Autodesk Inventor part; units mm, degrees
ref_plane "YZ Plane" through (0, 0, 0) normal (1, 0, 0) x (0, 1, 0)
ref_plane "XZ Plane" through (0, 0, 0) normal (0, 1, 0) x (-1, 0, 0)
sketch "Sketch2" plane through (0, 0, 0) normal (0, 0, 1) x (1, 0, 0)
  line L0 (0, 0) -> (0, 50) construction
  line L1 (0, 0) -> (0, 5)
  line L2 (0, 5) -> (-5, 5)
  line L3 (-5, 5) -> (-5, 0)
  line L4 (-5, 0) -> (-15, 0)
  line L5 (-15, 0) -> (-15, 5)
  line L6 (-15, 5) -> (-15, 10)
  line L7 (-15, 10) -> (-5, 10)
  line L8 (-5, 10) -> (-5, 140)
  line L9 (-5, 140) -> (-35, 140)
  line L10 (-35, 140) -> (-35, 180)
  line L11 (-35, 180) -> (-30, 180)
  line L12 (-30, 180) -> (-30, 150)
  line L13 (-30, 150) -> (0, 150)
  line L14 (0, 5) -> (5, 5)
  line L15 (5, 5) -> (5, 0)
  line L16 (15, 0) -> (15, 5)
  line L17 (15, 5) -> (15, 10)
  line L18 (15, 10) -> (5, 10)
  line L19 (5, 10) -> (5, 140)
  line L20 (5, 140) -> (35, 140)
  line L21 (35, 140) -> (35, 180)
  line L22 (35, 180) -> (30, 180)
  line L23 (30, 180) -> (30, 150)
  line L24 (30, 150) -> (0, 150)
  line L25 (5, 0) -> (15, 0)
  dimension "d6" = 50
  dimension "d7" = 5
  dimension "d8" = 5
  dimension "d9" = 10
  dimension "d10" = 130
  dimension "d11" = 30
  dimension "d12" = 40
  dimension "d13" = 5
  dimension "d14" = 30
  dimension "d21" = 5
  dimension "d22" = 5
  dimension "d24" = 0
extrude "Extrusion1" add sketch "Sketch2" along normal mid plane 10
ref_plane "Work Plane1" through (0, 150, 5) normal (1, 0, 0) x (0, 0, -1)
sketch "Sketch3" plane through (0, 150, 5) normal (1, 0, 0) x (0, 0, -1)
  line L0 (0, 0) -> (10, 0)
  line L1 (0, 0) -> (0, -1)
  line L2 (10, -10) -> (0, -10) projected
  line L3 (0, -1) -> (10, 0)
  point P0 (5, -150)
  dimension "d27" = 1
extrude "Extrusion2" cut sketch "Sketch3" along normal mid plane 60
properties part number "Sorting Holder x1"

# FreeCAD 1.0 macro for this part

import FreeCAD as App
import Part
import Sketcher
from FreeCAD import Vector


def add_polygon(sketch, points):
    """Adds a closed chain of lines whose ends are joined by coincident constraints."""
    first, n = sketch.GeometryCount, len(points)
    for a, b in zip(points, points[1:] + points[:1]):
        sketch.addGeometry(Part.LineSegment(App.Vector(*a, 0), App.Vector(*b, 0)), False)
    for i in range(n):
        sketch.addConstraint(Sketcher.Constraint("Coincident", first + i, 2, first + (i + 1) % n, 1))

doc = App.newDocument("Part")
params = doc.addObject("Spreadsheet::Sheet", "Params")
for row, (alias, value) in enumerate([
    ("sketch1_width", "10 mm"),
    ("sketch1_width2", "30 mm"),
    ("sketch1_width3", "5 mm"),
    ("sketch1_height", "130 mm"),
    ("sketch1_height2", "40 mm"),
    ("pad1_length", "10 mm"),
    ("sketch2_width", "1 mm"),
    ("sketch2_height", "10 mm"),
    ("pocket1_length", "60 mm"),
], start=1):
    params.set(f"A{row}", alias)
    params.set(f"B{row}", "=" + value)
    params.setAlias(f"B{row}", alias)

body = doc.addObject("PartDesign::Body", "Body")

sketch1 = body.newObject("Sketcher::SketchObject", "Sketch")
sketch1.AttachmentSupport = (doc.getObject("XY_Plane"), [""])
sketch1.MapMode = "FlatFace"
add_polygon(sketch1, [(-5, 5), (5, 5), (5, 0), (15, 0), (15, 10), (5, 10), (5, 140), (35, 140), (35, 180), (30, 180), (30, 150), (-30, 150), (-30, 180), (-35, 180), (-35, 140), (-5, 140), (-5, 10), (-15, 10), (-15, 0), (-5, 0)])
sketch1.addConstraint([
    Sketcher.Constraint("Horizontal", 0),
    Sketcher.Constraint("Vertical", 1),
    Sketcher.Constraint("Horizontal", 2),
    Sketcher.Constraint("Vertical", 3),
    Sketcher.Constraint("Horizontal", 4),
    Sketcher.Constraint("Vertical", 5),
    Sketcher.Constraint("Horizontal", 6),
    Sketcher.Constraint("Vertical", 7),
    Sketcher.Constraint("Horizontal", 8),
    Sketcher.Constraint("Vertical", 9),
    Sketcher.Constraint("Horizontal", 10),
    Sketcher.Constraint("Vertical", 11),
    Sketcher.Constraint("Horizontal", 12),
    Sketcher.Constraint("Vertical", 13),
    Sketcher.Constraint("Horizontal", 14),
    Sketcher.Constraint("Vertical", 15),
    Sketcher.Constraint("Horizontal", 16),
    Sketcher.Constraint("Vertical", 17),
    Sketcher.Constraint("Horizontal", 18),
    Sketcher.Constraint("Vertical", 19),
    Sketcher.Constraint("Symmetric", 2, 2, 17, 2, -1, 1),
    Sketcher.Constraint("Symmetric", 8, 2, 11, 2, -2),
    Sketcher.Constraint("Symmetric", 6, 2, 13, 2, -2),
    Sketcher.Constraint("Symmetric", 4, 2, 15, 2, -2),
    Sketcher.Constraint("Symmetric", 1, 2, 18, 2, -2),
    Sketcher.Constraint("Vertical", 1, 2, 4, 2),
    Sketcher.Constraint("Equal", 0, 2),
    Sketcher.Constraint("Equal", 12, 1),
    Sketcher.Constraint("Equal", 18, 3),
    Sketcher.Constraint("Equal", 14, 9),
    Sketcher.Constraint("DistanceX", 0, 1, 0, 2, 10.0),
    Sketcher.Constraint("DistanceX", 6, 1, 6, 2, 30.0),
    Sketcher.Constraint("DistanceX", 8, 2, 8, 1, 5.0),
    Sketcher.Constraint("DistanceY", 5, 1, 5, 2, 130.0),
    Sketcher.Constraint("DistanceY", 7, 1, 7, 2, 40.0),
])
sketch1.setExpression("Constraints[50]", "Params.sketch1_width")
sketch1.setExpression("Constraints[51]", "Params.sketch1_width2")
sketch1.setExpression("Constraints[52]", "Params.sketch1_width3")
sketch1.setExpression("Constraints[53]", "Params.sketch1_height")
sketch1.setExpression("Constraints[54]", "Params.sketch1_height2")
pad1 = body.newObject("PartDesign::Pad", "Pad")
pad1.Profile = sketch1
pad1.setExpression("Length", "Params.pad1_length")
pad1.Midplane = True

sketch2 = body.newObject("Sketcher::SketchObject", "Sketch001")
sketch2.AttachmentSupport = (doc.getObject("YZ_Plane"), [""])
sketch2.MapMode = "FlatFace"
add_polygon(sketch2, [(150, -5), (150, 5), (149, 5)])
sketch2.addConstraint([
    Sketcher.Constraint("Vertical", 0),
    Sketcher.Constraint("Horizontal", 1),
    Sketcher.Constraint("DistanceX", 1, 2, 1, 1, 1.0),
    Sketcher.Constraint("DistanceY", 0, 1, 0, 2, 10.0),
    Sketcher.Constraint("DistanceX", -1, 1, 0, 2, 150.0),
    Sketcher.Constraint("DistanceY", -1, 1, 0, 2, 5.0),
])
sketch2.setExpression("Constraints[5]", "Params.sketch2_width")
sketch2.setExpression("Constraints[6]", "Params.sketch2_height")
pocket1 = body.newObject("PartDesign::Pocket", "Pocket")
pocket1.Profile = sketch2
pocket1.setExpression("Length", "Params.pocket1_length")
pocket1.Midplane = True

doc.recompute()
